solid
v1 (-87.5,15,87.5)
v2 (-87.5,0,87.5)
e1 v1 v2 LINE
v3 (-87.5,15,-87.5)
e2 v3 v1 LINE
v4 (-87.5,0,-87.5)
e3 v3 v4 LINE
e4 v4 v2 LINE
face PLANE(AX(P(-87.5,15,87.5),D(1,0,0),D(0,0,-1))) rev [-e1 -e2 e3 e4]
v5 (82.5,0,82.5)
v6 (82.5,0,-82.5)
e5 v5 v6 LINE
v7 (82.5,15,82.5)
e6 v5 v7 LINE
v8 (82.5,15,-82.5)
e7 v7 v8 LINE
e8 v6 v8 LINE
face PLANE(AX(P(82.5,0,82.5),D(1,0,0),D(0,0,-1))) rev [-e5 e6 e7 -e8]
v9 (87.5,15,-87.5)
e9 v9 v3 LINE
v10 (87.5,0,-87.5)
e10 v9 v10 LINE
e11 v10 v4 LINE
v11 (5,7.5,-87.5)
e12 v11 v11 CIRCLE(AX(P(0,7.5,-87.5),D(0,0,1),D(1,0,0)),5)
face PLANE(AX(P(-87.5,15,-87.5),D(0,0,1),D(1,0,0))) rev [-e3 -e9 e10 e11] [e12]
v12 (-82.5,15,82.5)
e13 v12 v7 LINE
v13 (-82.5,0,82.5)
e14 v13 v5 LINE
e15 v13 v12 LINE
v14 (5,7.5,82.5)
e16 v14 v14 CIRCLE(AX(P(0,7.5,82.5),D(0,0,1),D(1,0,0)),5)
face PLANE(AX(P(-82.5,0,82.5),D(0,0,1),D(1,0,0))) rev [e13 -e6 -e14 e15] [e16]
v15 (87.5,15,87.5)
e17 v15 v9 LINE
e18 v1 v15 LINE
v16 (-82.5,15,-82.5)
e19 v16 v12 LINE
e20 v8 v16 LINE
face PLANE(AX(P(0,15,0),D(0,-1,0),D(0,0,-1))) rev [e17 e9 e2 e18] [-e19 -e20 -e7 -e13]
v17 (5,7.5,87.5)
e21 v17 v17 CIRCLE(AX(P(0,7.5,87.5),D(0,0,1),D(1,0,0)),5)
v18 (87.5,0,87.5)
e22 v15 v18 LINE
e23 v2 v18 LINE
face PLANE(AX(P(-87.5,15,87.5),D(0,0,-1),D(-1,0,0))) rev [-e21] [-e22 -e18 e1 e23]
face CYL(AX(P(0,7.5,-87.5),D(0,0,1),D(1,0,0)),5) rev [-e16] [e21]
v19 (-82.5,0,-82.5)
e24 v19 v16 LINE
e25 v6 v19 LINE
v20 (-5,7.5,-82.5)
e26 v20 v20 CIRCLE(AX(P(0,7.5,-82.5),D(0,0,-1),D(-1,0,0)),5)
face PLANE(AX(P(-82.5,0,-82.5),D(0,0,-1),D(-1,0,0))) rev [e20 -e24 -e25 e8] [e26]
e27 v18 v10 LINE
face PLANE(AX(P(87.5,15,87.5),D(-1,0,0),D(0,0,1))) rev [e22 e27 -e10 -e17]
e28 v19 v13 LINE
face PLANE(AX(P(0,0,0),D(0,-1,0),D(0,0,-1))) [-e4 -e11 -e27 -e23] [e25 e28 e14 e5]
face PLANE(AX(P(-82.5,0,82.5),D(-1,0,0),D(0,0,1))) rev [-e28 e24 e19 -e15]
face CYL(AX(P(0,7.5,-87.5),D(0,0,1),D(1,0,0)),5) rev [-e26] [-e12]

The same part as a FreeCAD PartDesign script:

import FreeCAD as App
import Part
import Sketcher
from FreeCAD import Vector
Q = App.Units.Quantity


def add_polygon(sketch, points):
    """Adds a closed chain of lines whose ends are joined by coincident constraints."""
    first, n = sketch.GeometryCount, len(points)
    for a, b in zip(points, points[1:] + points[:1]):
        sketch.addGeometry(Part.LineSegment(App.Vector(*a, 0), App.Vector(*b, 0)), False)
    for i in range(n):
        sketch.addConstraint(Sketcher.Constraint("Coincident", first + i, 2, first + (i + 1) % n, 1))

doc = App.newDocument("Part")
body = doc.addObject("PartDesign::Body", "Body")

# Sketch on XZ plane
sketch1 = doc.addObject("Sketcher::SketchObject", "Sketch")
body.addObject(sketch1)
sketch1.AttachmentSupport = (doc.XZ_Plane, [""])
sketch1.MapMode = "FlatFace"
add_polygon(sketch1, [(-87.5, -87.5), (-87.5, 87.5), (87.5, 87.5), (87.5, -87.5)])  # lines 0-3
sketch1.addConstraint(Sketcher.Constraint("Vertical", 0))
sketch1.addConstraint(Sketcher.Constraint("Horizontal", 1))
sketch1.addConstraint(Sketcher.Constraint("Vertical", 2))
sketch1.addConstraint(Sketcher.Constraint("Horizontal", 3))
sketch1.addConstraint(Sketcher.Constraint("Symmetric", 0, 2, 2, 2, -1, 1))
sketch1.addConstraint(Sketcher.Constraint("Equal", 3, 0))
sketch1.addConstraint(Sketcher.Constraint("DistanceX", 1, 1, 1, 2, Q("175 mm")))
pad1 = doc.addObject("PartDesign::Pad", "Pad")
body.addObject(pad1)
pad1.Profile = sketch1
pad1.Length = 15
pad1.Reversed = True

# Sketch on XZ plane
sketch2 = doc.addObject("Sketcher::SketchObject", "Sketch001")
body.addObject(sketch2)
sketch2.AttachmentSupport = (doc.XZ_Plane, [""])
sketch2.MapMode = "FlatFace"
sketch2.AttachmentOffset = App.Placement(Vector(0, 0, -15), App.Rotation())
add_polygon(sketch2, [(-82.5, -82.5), (-82.5, 82.5), (82.5, 82.5), (82.5, -82.5)])  # lines 0-3
sketch2.addConstraint(Sketcher.Constraint("Vertical", 0))
sketch2.addConstraint(Sketcher.Constraint("Horizontal", 1))
sketch2.addConstraint(Sketcher.Constraint("Vertical", 2))
sketch2.addConstraint(Sketcher.Constraint("Horizontal", 3))
sketch2.addConstraint(Sketcher.Constraint("Symmetric", 0, 2, 2, 2, -1, 1))
sketch2.addConstraint(Sketcher.Constraint("Equal", 3, 0))
sketch2.addConstraint(Sketcher.Constraint("DistanceX", 1, 1, 1, 2, Q("165 mm")))
pocket1 = doc.addObject("PartDesign::Pocket", "Pocket")
body.addObject(pocket1)
pocket1.Profile = sketch2
pocket1.Length = 15
pocket1.Reversed = True

# Sketch on XY plane
sketch3 = doc.addObject("Sketcher::SketchObject", "Sketch002")
body.addObject(sketch3)
sketch3.AttachmentSupport = (doc.XY_Plane, [""])
sketch3.MapMode = "FlatFace"
sketch3.AttachmentOffset = App.Placement(Vector(0, 0, 87.5), App.Rotation())
sketch3.addGeometry(Part.Circle(Vector(0, 7.5, 0), Vector(0, 0, 1), 5), False)
sketch3.addConstraint(Sketcher.Constraint("PointOnObject", 0, 3, -2))
sketch3.addConstraint(Sketcher.Constraint("Diameter", 0, Q("10 mm")))
sketch3.addConstraint(Sketcher.Constraint("DistanceY", -1, 1, 0, 3, Q("7.5 mm")))
pocket2 = doc.addObject("PartDesign::Pocket", "Pocket001")
body.addObject(pocket2)
pocket2.Profile = sketch3
pocket2.Type = "ThroughAll"

doc.recompute()
